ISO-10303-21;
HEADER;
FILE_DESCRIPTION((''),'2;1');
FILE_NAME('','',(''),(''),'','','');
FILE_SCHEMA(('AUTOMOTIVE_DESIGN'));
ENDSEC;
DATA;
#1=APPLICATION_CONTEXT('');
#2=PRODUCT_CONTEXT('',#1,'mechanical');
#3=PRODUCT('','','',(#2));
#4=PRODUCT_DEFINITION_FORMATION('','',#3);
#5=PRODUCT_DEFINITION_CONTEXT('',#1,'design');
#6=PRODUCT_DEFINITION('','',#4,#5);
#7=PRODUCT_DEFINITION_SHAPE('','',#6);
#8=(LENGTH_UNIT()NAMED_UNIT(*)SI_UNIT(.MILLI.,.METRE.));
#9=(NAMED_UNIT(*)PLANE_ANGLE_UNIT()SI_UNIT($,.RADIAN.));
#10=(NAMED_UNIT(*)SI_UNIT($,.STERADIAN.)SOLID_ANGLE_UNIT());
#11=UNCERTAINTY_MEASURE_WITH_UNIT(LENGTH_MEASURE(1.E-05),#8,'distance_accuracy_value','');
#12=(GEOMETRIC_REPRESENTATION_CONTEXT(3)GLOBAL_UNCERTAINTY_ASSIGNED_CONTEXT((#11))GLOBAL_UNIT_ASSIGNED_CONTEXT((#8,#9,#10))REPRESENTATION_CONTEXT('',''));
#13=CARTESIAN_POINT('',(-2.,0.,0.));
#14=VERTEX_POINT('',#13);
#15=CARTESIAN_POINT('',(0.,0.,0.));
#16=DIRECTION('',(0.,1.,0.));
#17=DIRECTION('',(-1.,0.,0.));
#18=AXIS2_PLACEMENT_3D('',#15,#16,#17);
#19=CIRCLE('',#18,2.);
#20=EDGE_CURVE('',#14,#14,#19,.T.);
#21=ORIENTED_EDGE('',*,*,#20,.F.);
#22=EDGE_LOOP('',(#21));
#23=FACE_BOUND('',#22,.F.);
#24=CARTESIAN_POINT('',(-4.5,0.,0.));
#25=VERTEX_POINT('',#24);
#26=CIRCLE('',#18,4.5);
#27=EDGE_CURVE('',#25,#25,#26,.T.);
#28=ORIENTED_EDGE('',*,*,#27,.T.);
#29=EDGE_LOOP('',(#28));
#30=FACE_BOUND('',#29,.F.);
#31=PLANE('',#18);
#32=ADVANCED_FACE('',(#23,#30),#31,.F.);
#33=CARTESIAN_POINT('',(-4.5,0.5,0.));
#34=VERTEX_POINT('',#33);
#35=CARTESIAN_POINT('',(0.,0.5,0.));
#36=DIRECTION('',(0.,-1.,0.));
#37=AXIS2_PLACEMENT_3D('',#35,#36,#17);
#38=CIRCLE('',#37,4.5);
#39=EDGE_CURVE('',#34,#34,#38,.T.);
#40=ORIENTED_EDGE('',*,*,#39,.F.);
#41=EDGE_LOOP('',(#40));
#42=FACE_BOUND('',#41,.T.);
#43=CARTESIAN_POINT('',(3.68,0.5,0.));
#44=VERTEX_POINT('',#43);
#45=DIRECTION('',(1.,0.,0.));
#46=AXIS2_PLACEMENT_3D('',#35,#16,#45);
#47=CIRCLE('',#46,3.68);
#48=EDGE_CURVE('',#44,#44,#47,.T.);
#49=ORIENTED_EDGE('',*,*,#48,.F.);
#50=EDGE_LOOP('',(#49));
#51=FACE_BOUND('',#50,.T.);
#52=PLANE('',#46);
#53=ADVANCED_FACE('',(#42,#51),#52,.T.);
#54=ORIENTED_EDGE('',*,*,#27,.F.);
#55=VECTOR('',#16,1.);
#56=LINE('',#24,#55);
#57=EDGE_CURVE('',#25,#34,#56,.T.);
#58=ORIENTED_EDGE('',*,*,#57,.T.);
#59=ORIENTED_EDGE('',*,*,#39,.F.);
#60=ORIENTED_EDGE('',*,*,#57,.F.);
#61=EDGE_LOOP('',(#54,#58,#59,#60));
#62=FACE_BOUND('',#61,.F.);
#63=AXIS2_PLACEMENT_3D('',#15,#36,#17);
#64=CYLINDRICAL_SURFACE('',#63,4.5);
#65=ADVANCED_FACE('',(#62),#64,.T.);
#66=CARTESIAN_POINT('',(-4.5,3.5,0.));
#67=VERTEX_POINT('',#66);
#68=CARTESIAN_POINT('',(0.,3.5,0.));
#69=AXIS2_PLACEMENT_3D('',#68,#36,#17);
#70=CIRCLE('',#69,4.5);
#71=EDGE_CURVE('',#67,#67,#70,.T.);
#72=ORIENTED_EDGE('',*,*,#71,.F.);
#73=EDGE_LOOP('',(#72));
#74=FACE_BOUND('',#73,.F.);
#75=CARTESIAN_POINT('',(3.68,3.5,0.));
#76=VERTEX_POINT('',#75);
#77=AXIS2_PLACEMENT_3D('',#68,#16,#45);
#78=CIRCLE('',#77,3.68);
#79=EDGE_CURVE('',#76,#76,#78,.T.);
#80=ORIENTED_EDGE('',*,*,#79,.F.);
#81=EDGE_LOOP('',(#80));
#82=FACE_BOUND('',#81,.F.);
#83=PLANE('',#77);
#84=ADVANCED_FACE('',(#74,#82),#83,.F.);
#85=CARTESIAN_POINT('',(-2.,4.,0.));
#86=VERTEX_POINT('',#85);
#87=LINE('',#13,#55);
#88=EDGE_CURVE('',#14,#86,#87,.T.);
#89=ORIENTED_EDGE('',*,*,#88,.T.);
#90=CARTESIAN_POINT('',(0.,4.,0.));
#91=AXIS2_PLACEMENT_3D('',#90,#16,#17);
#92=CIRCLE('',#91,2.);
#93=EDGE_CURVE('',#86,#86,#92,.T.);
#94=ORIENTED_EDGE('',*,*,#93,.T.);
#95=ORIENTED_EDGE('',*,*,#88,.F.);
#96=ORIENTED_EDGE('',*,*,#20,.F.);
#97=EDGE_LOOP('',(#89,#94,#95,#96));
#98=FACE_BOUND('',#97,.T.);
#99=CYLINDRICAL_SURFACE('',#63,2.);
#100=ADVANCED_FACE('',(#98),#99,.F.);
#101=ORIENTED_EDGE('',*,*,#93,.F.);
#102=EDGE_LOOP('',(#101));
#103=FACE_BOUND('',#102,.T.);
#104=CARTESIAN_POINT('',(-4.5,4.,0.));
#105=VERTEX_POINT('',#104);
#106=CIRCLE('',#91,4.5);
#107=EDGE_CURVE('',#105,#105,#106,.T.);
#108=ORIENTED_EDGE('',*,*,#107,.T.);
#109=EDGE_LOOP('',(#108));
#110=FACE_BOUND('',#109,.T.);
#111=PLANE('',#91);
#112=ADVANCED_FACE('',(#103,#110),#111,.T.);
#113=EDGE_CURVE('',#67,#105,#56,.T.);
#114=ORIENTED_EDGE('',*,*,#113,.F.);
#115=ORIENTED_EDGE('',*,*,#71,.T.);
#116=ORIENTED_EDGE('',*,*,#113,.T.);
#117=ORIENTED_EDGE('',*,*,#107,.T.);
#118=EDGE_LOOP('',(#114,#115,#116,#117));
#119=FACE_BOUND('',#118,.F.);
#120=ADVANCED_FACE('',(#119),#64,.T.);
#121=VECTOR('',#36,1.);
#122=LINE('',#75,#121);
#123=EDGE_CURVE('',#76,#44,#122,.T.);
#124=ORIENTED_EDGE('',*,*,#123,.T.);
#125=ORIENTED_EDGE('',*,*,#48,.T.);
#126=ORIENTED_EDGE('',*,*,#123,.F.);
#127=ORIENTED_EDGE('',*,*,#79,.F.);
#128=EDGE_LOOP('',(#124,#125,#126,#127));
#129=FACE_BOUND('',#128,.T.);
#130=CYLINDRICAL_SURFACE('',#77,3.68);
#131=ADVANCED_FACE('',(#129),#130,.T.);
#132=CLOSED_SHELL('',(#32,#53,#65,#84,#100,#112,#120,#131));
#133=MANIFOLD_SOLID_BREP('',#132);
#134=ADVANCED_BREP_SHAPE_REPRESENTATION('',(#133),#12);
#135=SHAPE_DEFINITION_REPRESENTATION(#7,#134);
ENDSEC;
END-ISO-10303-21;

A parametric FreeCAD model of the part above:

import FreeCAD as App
import Part
import Sketcher
Q = App.Units.Quantity

doc = App.newDocument("Part")
body = doc.addObject("PartDesign::Body", "Body")

# Sketch on XZ plane
sketch1 = body.newObject("Sketcher::SketchObject", "Sketch")
sketch1.AttachmentSupport = (doc.getObject("XZ_Plane"), [""])
sketch1.MapMode = "FlatFace"
sketch1.addGeometry([
    Part.Circle(App.Vector(0, 0, 0), App.Vector(0, 0, 1), 4.5),
    Part.Circle(App.Vector(0, 0, 0), App.Vector(0, 0, 1), 2),
], False)
sketch1.addConstraint([
    Sketcher.Constraint("Coincident", 0, 3, -1, 1),
    Sketcher.Constraint("Coincident", 1, 3, -1, 1),
    Sketcher.Constraint("Diameter", 0, Q("9 mm")),
    Sketcher.Constraint("Diameter", 1, Q("4 mm")),
])
pad1 = body.newObject("PartDesign::Pad", "Pad")
pad1.Profile = sketch1
pad1.Length = 4
pad1.Reversed = True

# Sketch on XZ plane
sketch2 = body.newObject("Sketcher::SketchObject", "Sketch001")
sketch2.AttachmentSupport = (doc.getObject("XZ_Plane"), [""])
sketch2.MapMode = "FlatFace"
sketch2.AttachmentOffset = App.Placement(App.Vector(0, 0, -3.5), App.Rotation())
sketch2.addGeometry([
    Part.Circle(App.Vector(0, 0, 0), App.Vector(0, 0, 1), 4.5),
    Part.Circle(App.Vector(0, 0, 0), App.Vector(0, 0, 1), 3.7),
], False)
sketch2.addConstraint([
    Sketcher.Constraint("Coincident", 0, 3, -1, 1),
    Sketcher.Constraint("Coincident", 1, 3, -1, 1),
    Sketcher.Constraint("Diameter", 0, Q("9 mm")),
    Sketcher.Constraint("Diameter", 1, Q("7.36 mm")),
])
pocket1 = body.newObject("PartDesign::Pocket", "Pocket")
pocket1.Profile = sketch2
pocket1.Length = 3
pocket1.Reversed = True

doc.recompute()
